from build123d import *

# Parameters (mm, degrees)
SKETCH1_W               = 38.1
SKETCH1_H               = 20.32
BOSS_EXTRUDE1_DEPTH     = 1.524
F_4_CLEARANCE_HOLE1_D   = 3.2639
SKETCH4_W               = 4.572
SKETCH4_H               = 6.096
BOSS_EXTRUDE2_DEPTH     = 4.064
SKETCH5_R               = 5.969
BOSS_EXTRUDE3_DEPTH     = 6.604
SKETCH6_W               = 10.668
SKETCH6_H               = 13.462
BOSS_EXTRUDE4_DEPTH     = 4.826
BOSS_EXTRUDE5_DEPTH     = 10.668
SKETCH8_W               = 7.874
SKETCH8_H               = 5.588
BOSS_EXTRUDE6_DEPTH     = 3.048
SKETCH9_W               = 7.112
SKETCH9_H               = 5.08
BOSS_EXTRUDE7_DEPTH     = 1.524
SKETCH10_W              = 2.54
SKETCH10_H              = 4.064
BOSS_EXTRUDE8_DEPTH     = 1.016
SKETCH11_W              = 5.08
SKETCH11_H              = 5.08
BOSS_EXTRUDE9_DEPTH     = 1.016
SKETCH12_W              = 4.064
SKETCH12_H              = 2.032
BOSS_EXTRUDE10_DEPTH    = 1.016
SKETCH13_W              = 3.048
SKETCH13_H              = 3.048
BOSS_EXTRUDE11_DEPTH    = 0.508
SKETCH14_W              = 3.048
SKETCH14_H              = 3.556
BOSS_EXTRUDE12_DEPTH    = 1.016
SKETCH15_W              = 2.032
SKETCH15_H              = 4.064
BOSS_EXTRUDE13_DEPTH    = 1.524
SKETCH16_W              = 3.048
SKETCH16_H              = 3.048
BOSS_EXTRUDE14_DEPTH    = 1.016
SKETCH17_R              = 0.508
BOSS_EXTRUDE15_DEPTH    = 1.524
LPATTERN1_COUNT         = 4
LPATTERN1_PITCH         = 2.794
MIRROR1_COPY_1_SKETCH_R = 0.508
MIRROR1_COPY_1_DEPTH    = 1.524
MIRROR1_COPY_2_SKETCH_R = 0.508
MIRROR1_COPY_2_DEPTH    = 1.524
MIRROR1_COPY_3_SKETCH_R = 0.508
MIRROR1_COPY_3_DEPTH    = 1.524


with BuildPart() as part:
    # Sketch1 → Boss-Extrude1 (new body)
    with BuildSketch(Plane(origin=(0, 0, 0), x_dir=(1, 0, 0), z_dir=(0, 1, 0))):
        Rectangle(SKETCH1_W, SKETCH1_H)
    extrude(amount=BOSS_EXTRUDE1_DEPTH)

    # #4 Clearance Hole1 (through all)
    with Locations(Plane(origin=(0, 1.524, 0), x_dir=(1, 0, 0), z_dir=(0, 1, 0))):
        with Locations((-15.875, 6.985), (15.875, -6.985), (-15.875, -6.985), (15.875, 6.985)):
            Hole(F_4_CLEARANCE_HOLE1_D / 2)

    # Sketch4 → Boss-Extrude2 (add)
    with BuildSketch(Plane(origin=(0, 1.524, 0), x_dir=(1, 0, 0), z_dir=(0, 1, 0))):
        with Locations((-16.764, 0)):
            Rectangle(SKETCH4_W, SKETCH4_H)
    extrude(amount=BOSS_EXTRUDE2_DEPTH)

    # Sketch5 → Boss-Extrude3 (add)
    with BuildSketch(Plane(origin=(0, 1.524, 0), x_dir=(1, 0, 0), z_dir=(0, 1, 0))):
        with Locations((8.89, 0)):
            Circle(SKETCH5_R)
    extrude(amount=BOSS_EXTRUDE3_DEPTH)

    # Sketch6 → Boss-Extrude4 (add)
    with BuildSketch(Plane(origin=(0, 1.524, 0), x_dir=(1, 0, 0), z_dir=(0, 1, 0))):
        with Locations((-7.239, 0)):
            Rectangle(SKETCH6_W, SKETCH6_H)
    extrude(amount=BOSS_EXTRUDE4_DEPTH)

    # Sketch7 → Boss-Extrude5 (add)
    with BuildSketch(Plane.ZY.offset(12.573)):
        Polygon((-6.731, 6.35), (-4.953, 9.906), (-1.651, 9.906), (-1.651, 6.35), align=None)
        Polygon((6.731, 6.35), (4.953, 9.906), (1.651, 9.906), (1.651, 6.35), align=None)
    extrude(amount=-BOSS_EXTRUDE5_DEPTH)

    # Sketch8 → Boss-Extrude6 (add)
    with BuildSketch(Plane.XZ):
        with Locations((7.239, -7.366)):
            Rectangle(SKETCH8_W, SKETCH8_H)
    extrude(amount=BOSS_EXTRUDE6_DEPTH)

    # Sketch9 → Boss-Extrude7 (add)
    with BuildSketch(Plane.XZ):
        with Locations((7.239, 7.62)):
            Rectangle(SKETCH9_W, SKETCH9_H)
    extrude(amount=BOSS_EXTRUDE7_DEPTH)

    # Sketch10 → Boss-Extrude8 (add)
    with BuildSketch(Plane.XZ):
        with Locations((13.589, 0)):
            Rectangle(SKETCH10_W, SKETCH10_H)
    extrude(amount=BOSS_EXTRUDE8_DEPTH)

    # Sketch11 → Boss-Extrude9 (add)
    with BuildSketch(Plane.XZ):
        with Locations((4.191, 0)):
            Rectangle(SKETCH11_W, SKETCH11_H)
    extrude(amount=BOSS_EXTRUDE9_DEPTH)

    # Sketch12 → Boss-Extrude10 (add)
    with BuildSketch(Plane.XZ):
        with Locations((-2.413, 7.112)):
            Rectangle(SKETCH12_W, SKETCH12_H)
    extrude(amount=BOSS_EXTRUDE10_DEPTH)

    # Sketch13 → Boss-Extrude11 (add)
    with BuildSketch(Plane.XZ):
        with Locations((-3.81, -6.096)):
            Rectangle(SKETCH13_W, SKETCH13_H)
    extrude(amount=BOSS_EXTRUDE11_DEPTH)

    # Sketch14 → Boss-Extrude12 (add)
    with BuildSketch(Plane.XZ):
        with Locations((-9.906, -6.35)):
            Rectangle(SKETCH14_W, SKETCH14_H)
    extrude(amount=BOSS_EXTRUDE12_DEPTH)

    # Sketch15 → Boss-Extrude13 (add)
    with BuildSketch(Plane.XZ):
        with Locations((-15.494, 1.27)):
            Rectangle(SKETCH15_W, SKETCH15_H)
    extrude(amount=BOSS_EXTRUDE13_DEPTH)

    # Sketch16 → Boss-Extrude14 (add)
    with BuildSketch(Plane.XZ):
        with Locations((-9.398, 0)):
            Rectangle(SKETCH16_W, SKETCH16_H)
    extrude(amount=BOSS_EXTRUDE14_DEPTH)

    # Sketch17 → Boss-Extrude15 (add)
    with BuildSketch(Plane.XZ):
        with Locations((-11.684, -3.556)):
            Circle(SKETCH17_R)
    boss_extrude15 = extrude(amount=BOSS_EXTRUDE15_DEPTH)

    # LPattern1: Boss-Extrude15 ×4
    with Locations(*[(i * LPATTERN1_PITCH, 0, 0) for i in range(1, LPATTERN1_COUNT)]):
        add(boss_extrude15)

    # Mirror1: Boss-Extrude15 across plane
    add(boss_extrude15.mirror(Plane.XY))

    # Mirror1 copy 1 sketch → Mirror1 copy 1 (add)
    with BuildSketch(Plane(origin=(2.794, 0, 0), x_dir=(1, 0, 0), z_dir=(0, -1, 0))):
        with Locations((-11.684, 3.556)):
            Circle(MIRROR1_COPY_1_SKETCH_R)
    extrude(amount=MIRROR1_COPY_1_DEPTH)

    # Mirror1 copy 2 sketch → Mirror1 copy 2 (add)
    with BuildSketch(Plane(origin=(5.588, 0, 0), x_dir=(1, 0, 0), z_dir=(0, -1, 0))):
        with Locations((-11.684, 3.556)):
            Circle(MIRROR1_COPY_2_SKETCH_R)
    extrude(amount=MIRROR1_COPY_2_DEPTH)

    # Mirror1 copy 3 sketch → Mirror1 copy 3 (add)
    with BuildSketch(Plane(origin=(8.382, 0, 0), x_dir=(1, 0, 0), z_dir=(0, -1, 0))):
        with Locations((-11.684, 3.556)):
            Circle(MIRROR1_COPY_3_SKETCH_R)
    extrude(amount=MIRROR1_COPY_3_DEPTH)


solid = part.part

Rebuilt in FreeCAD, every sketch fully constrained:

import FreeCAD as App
import Part
import Sketcher
from FreeCAD import Vector
Q = App.Units.Quantity


def add_polygon(sketch, points):
    """Adds a closed chain of lines whose ends are joined by coincident constraints."""
    first, n = sketch.GeometryCount, len(points)
    for a, b in zip(points, points[1:] + points[:1]):
        sketch.addGeometry(Part.LineSegment(App.Vector(*a, 0), App.Vector(*b, 0)), False)
    for i in range(n):
        sketch.addConstraint(Sketcher.Constraint("Coincident", first + i, 2, first + (i + 1) % n, 1))

doc = App.newDocument("Part")
params = doc.addObject("Spreadsheet::Sheet", "Params")
for row, (alias, value) in enumerate([
    ("sketch1_width", "1.5 in"),
    ("sketch1_height", "0.8 in"),
    ("pad1_length", "0.06 in"),
    ("hole_diameter", "0.1285 in"),
    ("sketch3_width", "0.18 in"),
    ("sketch3_height", "0.24 in"),
    ("pad2_length", "0.16 in"),
    ("sketch4_diameter", "0.47 in"),
    ("pad3_length", "0.26 in"),
    ("sketch5_width", "0.42 in"),
    ("sketch5_height", "0.53 in"),
    ("pad4_length", "0.19 in"),
    ("sketch6_height", "0.2 in"),
    ("sketch6_width", "0.14 in"),
    ("sketch6_height2", "0.13 in"),
    ("pad5_length", "0.42 in"),
    ("sketch7_width", "0.31 in"),
    ("sketch7_height", "0.22 in"),
    ("pad6_length", "0.12 in"),
    ("sketch8_height", "0.2 in"),
    ("sketch8_width", "0.28 in"),
    ("pad7_length", "0.06 in"),
    ("sketch9_width", "0.1 in"),
    ("sketch9_height", "0.16 in"),
    ("pad8_length", "0.04 in"),
    ("sketch10_width", "0.2 in"),
    ("pad9_length", "0.04 in"),
    ("sketch11_width", "0.16 in"),
    ("sketch11_height", "0.08 in"),
    ("pad10_length", "0.04 in"),
    ("sketch12_width", "0.12 in"),
    ("pad11_length", "0.02 in"),
    ("sketch13_width", "0.12 in"),
    ("sketch13_height", "0.14 in"),
    ("pad12_length", "0.04 in"),
    ("sketch14_width", "0.08 in"),
    ("sketch14_height", "0.16 in"),
    ("pad13_length", "0.06 in"),
    ("sketch15_width", "0.12 in"),
    ("pad14_length", "0.04 in"),
    ("sketch16_diameter", "0.04 in"),
    ("pad15_length", "0.06 in"),
    ("linearpattern_pitch", "0.11 in"),
    ("sketch17_diameter", "0.04 in"),
    ("pad16_length", "0.06 in"),
    ("sketch18_diameter", "0.04 in"),
    ("pad17_length", "0.06 in"),
    ("sketch19_diameter", "0.04 in"),
    ("pad18_length", "0.06 in"),
], start=1):
    params.set(f"A{row}", alias)
    params.set(f"B{row}", "=" + value)
    params.setAlias(f"B{row}", alias)

body = doc.addObject("PartDesign::Body", "Body")

# Sketch on XZ plane
sketch1 = body.newObject("Sketcher::SketchObject", "Sketch")
sketch1.AttachmentSupport = (doc.getObject("XZ_Plane"), [""])
sketch1.MapMode = "FlatFace"
add_polygon(sketch1, [(-19.05, -10.16), (-19.05, 10.16), (19.05, 10.16), (19.05, -10.16)])  # lines 0-3
sketch1.addConstraint([
    Sketcher.Constraint("Vertical", 0),
    Sketcher.Constraint("Horizontal", 1),
    Sketcher.Constraint("Vertical", 2),
    Sketcher.Constraint("Horizontal", 3),
    Sketcher.Constraint("Symmetric", 0, 2, 2, 2, -1, 1),
    Sketcher.Constraint("DistanceX", 1, 1, 1, 2, Q("1.5 in")),
    Sketcher.Constraint("DistanceY", 0, 1, 0, 2, Q("0.8 in")),
])
sketch1.setExpression("Constraints[9]", "Params.sketch1_width")
sketch1.setExpression("Constraints[10]", "Params.sketch1_height")
pad1 = body.newObject("PartDesign::Pad", "Pad")
pad1.Profile = sketch1
pad1.setExpression("Length", "Params.pad1_length")
pad1.Reversed = True

# Sketch on XZ plane
sketch2 = body.newObject("Sketcher::SketchObject", "Sketch001")
sketch2.AttachmentSupport = (doc.getObject("XZ_Plane"), [""])
sketch2.MapMode = "FlatFace"
sketch2.AttachmentOffset = App.Placement(Vector(0, 0, -0.06 * 25.4), App.Rotation())
sketch2.addGeometry([
    Part.Circle(Vector(-15.875, -6.985, 0), Vector(0, 0, 1), 1.63195),
    Part.Circle(Vector(15.875, 6.985, 0), Vector(0, 0, 1), 1.63195),
    Part.Circle(Vector(-15.875, 6.985, 0), Vector(0, 0, 1), 1.63195),
    Part.Circle(Vector(15.875, -6.985, 0), Vector(0, 0, 1), 1.63195),
], False)
sketch2.addConstraint([
    Sketcher.Constraint("Equal", 0, 1),
    Sketcher.Constraint("Equal", 1, 2),
    Sketcher.Constraint("Equal", 2, 3),
    Sketcher.Constraint("Symmetric", 0, 3, 1, 3, -1, 1),
    Sketcher.Constraint("Symmetric", 2, 3, 3, 3, -1, 1),
    Sketcher.Constraint("Symmetric", 1, 3, 2, 3, -2),
    Sketcher.Constraint("Diameter", 0, Q("0.1285 in")),
    Sketcher.Constraint("DistanceX", 0, 3, 1, 3, Q("1.25 in")),
    Sketcher.Constraint("DistanceY", 0, 3, 1, 3, Q("0.55 in")),
])
doc.recompute()
hole = body.newObject("PartDesign::Hole", "Hole")
hole.Profile = sketch2
hole.ThreadType = "None"
hole.setExpression("Diameter", "Params.hole_diameter")
hole.DepthType = "ThroughAll"
hole.Reversed = True

# Sketch on XZ plane
sketch3 = body.newObject("Sketcher::SketchObject", "Sketch002")
sketch3.AttachmentSupport = (doc.getObject("XZ_Plane"), [""])
sketch3.MapMode = "FlatFace"
sketch3.AttachmentOffset = App.Placement(Vector(0, 0, -0.06 * 25.4), App.Rotation())
add_polygon(sketch3, [(-19.05, -3.048), (-19.05, 3.048), (-14.478, 3.048), (-14.478, -3.048)])  # lines 0-3
sketch3.addConstraint([
    Sketcher.Constraint("Vertical", 0),
    Sketcher.Constraint("Horizontal", 1),
    Sketcher.Constraint("Vertical", 2),
    Sketcher.Constraint("Horizontal", 3),
    Sketcher.Constraint("DistanceX", 1, 1, 1, 2, Q("0.18 in")),
    Sketcher.Constraint("DistanceY", 0, 1, 0, 2, Q("0.24 in")),
    Sketcher.Constraint("DistanceX", 0, 2, -1, 1, Q("0.75 in")),
    Sketcher.Constraint("DistanceY", -1, 1, 0, 2, Q("0.12 in")),
])
sketch3.setExpression("Constraints[8]", "Params.sketch3_width")
sketch3.setExpression("Constraints[9]", "Params.sketch3_height")
pad2 = body.newObject("PartDesign::Pad", "Pad001")
pad2.Profile = sketch3
pad2.setExpression("Length", "Params.pad2_length")
pad2.Reversed = True

# Sketch on XZ plane
sketch4 = body.newObject("Sketcher::SketchObject", "Sketch003")
sketch4.AttachmentSupport = (doc.getObject("XZ_Plane"), [""])
sketch4.MapMode = "FlatFace"
sketch4.AttachmentOffset = App.Placement(Vector(0, 0, -0.06 * 25.4), App.Rotation())
sketch4.addGeometry(Part.Circle(Vector(8.89, 0, 0), Vector(0, 0, 1), 5.969), False)
sketch4.addConstraint([
    Sketcher.Constraint("PointOnObject", 0, 3, -1),
    Sketcher.Constraint("Diameter", 0, Q("0.47 in")),
    Sketcher.Constraint("DistanceX", -1, 1, 0, 3, Q("0.35 in")),
])
sketch4.setExpression("Constraints[1]", "Params.sketch4_diameter")
pad3 = body.newObject("PartDesign::Pad", "Pad002")
pad3.Profile = sketch4
pad3.setExpression("Length", "Params.pad3_length")
pad3.Reversed = True

# Sketch on XZ plane
sketch5 = body.newObject("Sketcher::SketchObject", "Sketch004")
sketch5.AttachmentSupport = (doc.getObject("XZ_Plane"), [""])
sketch5.MapMode = "FlatFace"
sketch5.AttachmentOffset = App.Placement(Vector(0, 0, -0.06 * 25.4), App.Rotation())
add_polygon(sketch5, [(-12.573, -6.731), (-12.573, 6.731), (-1.905, 6.731), (-1.905, -6.731)])  # lines 0-3
sketch5.addConstraint([
    Sketcher.Constraint("Vertical", 0),
    Sketcher.Constraint("Horizontal", 1),
    Sketcher.Constraint("Vertical", 2),
    Sketcher.Constraint("Horizontal", 3),
    Sketcher.Constraint("DistanceX", 1, 1, 1, 2, Q("0.42 in")),
    Sketcher.Constraint("DistanceY", 0, 1, 0, 2, Q("0.53 in")),
    Sketcher.Constraint("DistanceX", 0, 2, -1, 1, Q("0.495 in")),
    Sketcher.Constraint("DistanceY", -1, 1, 0, 2, Q("0.265 in")),
])
sketch5.setExpression("Constraints[8]", "Params.sketch5_width")
sketch5.setExpression("Constraints[9]", "Params.sketch5_height")
pad4 = body.newObject("PartDesign::Pad", "Pad003")
pad4.Profile = sketch5
pad4.setExpression("Length", "Params.pad4_length")
pad4.Reversed = True

# Sketch on YZ plane
sketch6 = body.newObject("Sketcher::SketchObject", "Sketch005")
sketch6.AttachmentSupport = (doc.getObject("YZ_Plane"), [""])
sketch6.MapMode = "FlatFace"
sketch6.AttachmentOffset = App.Placement(Vector(0, 0, -0.495 * 25.4), App.Rotation())
add_polygon(sketch6, [(9.906, -4.953), (6.35, -6.731), (6.35, -1.651), (9.906, -1.651)])  # lines 0-3
add_polygon(sketch6, [(6.35, 6.731), (9.906, 4.953), (9.906, 1.651), (6.35, 1.651)])  # lines 4-7
sketch6.addConstraint([
    Sketcher.Constraint("Vertical", 1),
    Sketcher.Constraint("Horizontal", 2),
    Sketcher.Constraint("Vertical", 3),
    Sketcher.Constraint("Vertical", 5),
    Sketcher.Constraint("Horizontal", 6),
    Sketcher.Constraint("Vertical", 7),
    Sketcher.Constraint("Symmetric", 3, 2, 4, 2, -1),
    Sketcher.Constraint("Symmetric", 1, 2, 6, 2, -1),
    Sketcher.Constraint("Equal", 1, 7),
    Sketcher.Constraint("DistanceY", 1, 1, 1, 2, Q("0.2 in")),
    Sketcher.Constraint("DistanceX", 2, 1, 2, 2, Q("0.14 in")),
    Sketcher.Constraint("DistanceY", 3, 2, 3, 1, Q("0.13 in")),
    Sketcher.Constraint("DistanceX", -1, 1, 0, 2, Q("0.25 in")),
    Sketcher.Constraint("DistanceY", 2, 2, 4, 2, Q("0.26 in")),
])
sketch6.setExpression("Constraints[17]", "Params.sketch6_height")
sketch6.setExpression("Constraints[18]", "Params.sketch6_width")
sketch6.setExpression("Constraints[19]", "Params.sketch6_height2")
pad5 = body.newObject("PartDesign::Pad", "Pad004")
pad5.Profile = sketch6
pad5.setExpression("Length", "Params.pad5_length")

# Sketch on XZ plane
sketch7 = body.newObject("Sketcher::SketchObject", "Sketch006")
sketch7.AttachmentSupport = (doc.getObject("XZ_Plane"), [""])
sketch7.MapMode = "FlatFace"
add_polygon(sketch7, [(3.302, -4.572), (3.302, -10.16), (11.176, -10.16), (11.176, -4.572)])  # lines 0-3
sketch7.addConstraint([
    Sketcher.Constraint("Vertical", 0),
    Sketcher.Constraint("Horizontal", 1),
    Sketcher.Constraint("Vertical", 2),
    Sketcher.Constraint("Horizontal", 3),
    Sketcher.Constraint("DistanceX", 1, 1, 1, 2, Q("0.31 in")),
    Sketcher.Constraint("DistanceY", 0, 2, 0, 1, Q("0.22 in")),
    Sketcher.Constraint("DistanceY", 0, 2, -1, 1, Q("0.4 in")),
    Sketcher.Constraint("DistanceX", -1, 1, 0, 2, Q("0.13 in")),
])
sketch7.setExpression("Constraints[8]", "Params.sketch7_width")
sketch7.setExpression("Constraints[9]", "Params.sketch7_height")
pad6 = body.newObject("PartDesign::Pad", "Pad005")
pad6.Profile = sketch7
pad6.setExpression("Length", "Params.pad6_length")

# Sketch on XZ plane
sketch8 = body.newObject("Sketcher::SketchObject", "Sketch007")
sketch8.AttachmentSupport = (doc.getObject("XZ_Plane"), [""])
sketch8.MapMode = "FlatFace"
add_polygon(sketch8, [(3.683, 10.16), (3.683, 5.08), (10.795, 5.08), (10.795, 10.16)])  # lines 0-3
sketch8.addConstraint([
    Sketcher.Constraint("Vertical", 0),
    Sketcher.Constraint("Horizontal", 1),
    Sketcher.Constraint("Vertical", 2),
    Sketcher.Constraint("Horizontal", 3),
    Sketcher.Constraint("DistanceY", 0, 2, 0, 1, Q("0.2 in")),
    Sketcher.Constraint("DistanceX", 1, 1, 1, 2, Q("0.28 in")),
    Sketcher.Constraint("DistanceY", -1, 1, 0, 2, Q("0.2 in")),
    Sketcher.Constraint("DistanceX", -1, 1, 0, 2, Q("0.145 in")),
])
sketch8.setExpression("Constraints[8]", "Params.sketch8_height")
sketch8.setExpression("Constraints[9]", "Params.sketch8_width")
pad7 = body.newObject("PartDesign::Pad", "Pad006")
pad7.Profile = sketch8
pad7.setExpression("Length", "Params.pad7_length")

# Sketch on XZ plane
sketch9 = body.newObject("Sketcher::SketchObject", "Sketch008")
sketch9.AttachmentSupport = (doc.getObject("XZ_Plane"), [""])
sketch9.MapMode = "FlatFace"
add_polygon(sketch9, [(12.319, 2.032), (12.319, -2.032), (14.859, -2.032), (14.859, 2.032)])  # lines 0-3
sketch9.addConstraint([
    Sketcher.Constraint("Vertical", 0),
    Sketcher.Constraint("Horizontal", 1),
    Sketcher.Constraint("Vertical", 2),
    Sketcher.Constraint("Horizontal", 3),
    Sketcher.Constraint("DistanceX", 1, 1, 1, 2, Q("0.1 in")),
    Sketcher.Constraint("DistanceY", 0, 2, 0, 1, Q("0.16 in")),
    Sketcher.Constraint("DistanceY", 0, 2, -1, 1, Q("0.08 in")),
    Sketcher.Constraint("DistanceX", -1, 1, 0, 2, Q("0.485 in")),
])
sketch9.setExpression("Constraints[8]", "Params.sketch9_width")
sketch9.setExpression("Constraints[9]", "Params.sketch9_height")
pad8 = body.newObject("PartDesign::Pad", "Pad007")
pad8.Profile = sketch9
pad8.setExpression("Length", "Params.pad8_length")

# Sketch on XZ plane
sketch10 = body.newObject("Sketcher::SketchObject", "Sketch009")
sketch10.AttachmentSupport = (doc.getObject("XZ_Plane"), [""])
sketch10.MapMode = "FlatFace"
add_polygon(sketch10, [(1.651, 2.54), (1.651, -2.54), (6.731, -2.54), (6.731, 2.54)])  # lines 0-3
sketch10.addConstraint([
    Sketcher.Constraint("Vertical", 0),
    Sketcher.Constraint("Horizontal", 1),
    Sketcher.Constraint("Vertical", 2),
    Sketcher.Constraint("Horizontal", 3),
    Sketcher.Constraint("Equal", 3, 0),
    Sketcher.Constraint("DistanceX", 1, 1, 1, 2, Q("0.2 in")),
    Sketcher.Constraint("DistanceY", 0, 2, -1, 1, Q("0.1 in")),
    Sketcher.Constraint("DistanceX", -1, 1, 0, 2, Q("0.065 in")),
])
sketch10.setExpression("Constraints[9]", "Params.sketch10_width")
pad9 = body.newObject("PartDesign::Pad", "Pad008")
pad9.Profile = sketch10
pad9.setExpression("Length", "Params.pad9_length")

# Sketch on XZ plane
sketch11 = body.newObject("Sketcher::SketchObject", "Sketch010")
sketch11.AttachmentSupport = (doc.getObject("XZ_Plane"), [""])
sketch11.MapMode = "FlatFace"
add_polygon(sketch11, [(-4.445, 8.128), (-4.445, 6.096), (-0.381, 6.096), (-0.381, 8.128)])  # lines 0-3
sketch11.addConstraint([
    Sketcher.Constraint("Vertical", 0),
    Sketcher.Constraint("Horizontal", 1),
    Sketcher.Constraint("Vertical", 2),
    Sketcher.Constraint("Horizontal", 3),
    Sketcher.Constraint("DistanceX", 1, 1, 1, 2, Q("0.16 in")),
    Sketcher.Constraint("DistanceY", 0, 2, 0, 1, Q("0.08 in")),
    Sketcher.Constraint("DistanceY", -1, 1, 0, 2, Q("0.24 in")),
    Sketcher.Constraint("DistanceX", 0, 2, -1, 1, Q("0.175 in")),
])
sketch11.setExpression("Constraints[8]", "Params.sketch11_width")
sketch11.setExpression("Constraints[9]", "Params.sketch11_height")
pad10 = body.newObject("PartDesign::Pad", "Pad009")
pad10.Profile = sketch11
pad10.setExpression("Length", "Params.pad10_length")

# Sketch on XZ plane
sketch12 = body.newObject("Sketcher::SketchObject", "Sketch011")
sketch12.AttachmentSupport = (doc.getObject("XZ_Plane"), [""])
sketch12.MapMode = "FlatFace"
add_polygon(sketch12, [(-5.334, -4.572), (-5.334, -7.62), (-2.286, -7.62), (-2.286, -4.572)])  # lines 0-3
sketch12.addConstraint([
    Sketcher.Constraint("Vertical", 0),
    Sketcher.Constraint("Horizontal", 1),
    Sketcher.Constraint("Vertical", 2),
    Sketcher.Constraint("Horizontal", 3),
    Sketcher.Constraint("Equal", 3, 0),
    Sketcher.Constraint("DistanceX", 1, 1, 1, 2, Q("0.12 in")),
    Sketcher.Constraint("DistanceY", 0, 2, -1, 1, Q("0.3 in")),
    Sketcher.Constraint("DistanceX", 0, 2, -1, 1, Q("0.21 in")),
])
sketch12.setExpression("Constraints[9]", "Params.sketch12_width")
pad11 = body.newObject("PartDesign::Pad", "Pad010")
pad11.Profile = sketch12
pad11.setExpression("Length", "Params.pad11_length")

# Sketch on XZ plane
sketch13 = body.newObject("Sketcher::SketchObject", "Sketch012")
sketch13.AttachmentSupport = (doc.getObject("XZ_Plane"), [""])
sketch13.MapMode = "FlatFace"
add_polygon(sketch13, [(-11.43, -4.572), (-11.43, -8.128), (-8.382, -8.128), (-8.382, -4.572)])  # lines 0-3
sketch13.addConstraint([
    Sketcher.Constraint("Vertical", 0),
    Sketcher.Constraint("Horizontal", 1),
    Sketcher.Constraint("Vertical", 2),
    Sketcher.Constraint("Horizontal", 3),
    Sketcher.Constraint("DistanceX", 1, 1, 1, 2, Q("0.12 in")),
    Sketcher.Constraint("DistanceY", 0, 2, 0, 1, Q("0.14 in")),
    Sketcher.Constraint("DistanceX", 0, 2, -1, 1, Q("0.45 in")),
    Sketcher.Constraint("DistanceY", 0, 2, -1, 1, Q("0.32 in")),
])
sketch13.setExpression("Constraints[8]", "Params.sketch13_width")
sketch13.setExpression("Constraints[9]", "Params.sketch13_height")
pad12 = body.newObject("PartDesign::Pad", "Pad011")
pad12.Profile = sketch13
pad12.setExpression("Length", "Params.pad12_length")

# Sketch on XZ plane
sketch14 = body.newObject("Sketcher::SketchObject", "Sketch013")
sketch14.AttachmentSupport = (doc.getObject("XZ_Plane"), [""])
sketch14.MapMode = "FlatFace"
add_polygon(sketch14, [(-16.51, 3.302), (-16.51, -0.762), (-14.478, -0.762), (-14.478, 3.302)])  # lines 0-3
sketch14.addConstraint([
    Sketcher.Constraint("Vertical", 0),
    Sketcher.Constraint("Horizontal", 1),
    Sketcher.Constraint("Vertical", 2),
    Sketcher.Constraint("Horizontal", 3),
    Sketcher.Constraint("DistanceX", 1, 1, 1, 2, Q("0.08 in")),
    Sketcher.Constraint("DistanceY", 0, 2, 0, 1, Q("0.16 in")),
    Sketcher.Constraint("DistanceX", 0, 2, -1, 1, Q("0.65 in")),
    Sketcher.Constraint("DistanceY", 0, 2, -1, 1, Q("0.03 in")),
])
sketch14.setExpression("Constraints[8]", "Params.sketch14_width")
sketch14.setExpression("Constraints[9]", "Params.sketch14_height")
pad13 = body.newObject("PartDesign::Pad", "Pad012")
pad13.Profile = sketch14
pad13.setExpression("Length", "Params.pad13_length")

# Sketch on XZ plane
sketch15 = body.newObject("Sketcher::SketchObject", "Sketch014")
sketch15.AttachmentSupport = (doc.getObject("XZ_Plane"), [""])
sketch15.MapMode = "FlatFace"
add_polygon(sketch15, [(-10.922, 1.524), (-10.922, -1.524), (-7.874, -1.524), (-7.874, 1.524)])  # lines 0-3
sketch15.addConstraint([
    Sketcher.Constraint("Vertical", 0),
    Sketcher.Constraint("Horizontal", 1),
    Sketcher.Constraint("Vertical", 2),
    Sketcher.Constraint("Horizontal", 3),
    Sketcher.Constraint("Equal", 3, 0),
    Sketcher.Constraint("DistanceX", 1, 1, 1, 2, Q("0.12 in")),
    Sketcher.Constraint("DistanceX", 0, 2, -1, 1, Q("0.43 in")),
    Sketcher.Constraint("DistanceY", 0, 2, -1, 1, Q("0.06 in")),
])
sketch15.setExpression("Constraints[9]", "Params.sketch15_width")
pad14 = body.newObject("PartDesign::Pad", "Pad013")
pad14.Profile = sketch15
pad14.setExpression("Length", "Params.pad14_length")

# Sketch on XZ plane
sketch16 = body.newObject("Sketcher::SketchObject", "Sketch015")
sketch16.AttachmentSupport = (doc.getObject("XZ_Plane"), [""])
sketch16.MapMode = "FlatFace"
sketch16.addGeometry(Part.Circle(Vector(-11.684, -3.556, 0), Vector(0, 0, 1), 0.508), False)
sketch16.addConstraint([
    Sketcher.Constraint("Diameter", 0, Q("0.04 in")),
    Sketcher.Constraint("DistanceX", 0, 3, -1, 1, Q("0.46 in")),
    Sketcher.Constraint("DistanceY", 0, 3, -1, 1, Q("0.14 in")),
])
sketch16.setExpression("Constraints[0]", "Params.sketch16_diameter")
pad15 = body.newObject("PartDesign::Pad", "Pad014")
pad15.Profile = sketch16
pad15.setExpression("Length", "Params.pad15_length")
doc.recompute()

linearpattern = body.newObject("PartDesign::LinearPattern", "LinearPattern")
linearpattern.Originals = [pad15]
linearpattern.Direction = (doc.getObject("X_Axis"), [""])
linearpattern.Mode = "offset"
linearpattern.setExpression("Offset", "Params.linearpattern_pitch")
linearpattern.Occurrences = 4
body.Tip = linearpattern
doc.recompute()

mirrored = body.newObject("PartDesign::Mirrored", "Mirrored")
mirrored.Originals = [pad15]
mirrored.MirrorPlane = (doc.getObject("XY_Plane"), [""])
body.Tip = mirrored

# Sketch on XZ plane
sketch17 = body.newObject("Sketcher::SketchObject", "Sketch016")
sketch17.AttachmentSupport = (doc.getObject("XZ_Plane"), [""])
sketch17.MapMode = "FlatFace"
sketch17.addGeometry(Part.Circle(Vector(-8.89, 3.556, 0), Vector(0, 0, 1), 0.508), False)
sketch17.addConstraint([
    Sketcher.Constraint("Diameter", 0, Q("0.04 in")),
    Sketcher.Constraint("DistanceX", 0, 3, -1, 1, Q("0.35 in")),
    Sketcher.Constraint("DistanceY", -1, 1, 0, 3, Q("0.14 in")),
])
sketch17.setExpression("Constraints[0]", "Params.sketch17_diameter")
pad16 = body.newObject("PartDesign::Pad", "Pad015")
pad16.Profile = sketch17
pad16.setExpression("Length", "Params.pad16_length")

# Sketch on XZ plane
sketch18 = body.newObject("Sketcher::SketchObject", "Sketch017")
sketch18.AttachmentSupport = (doc.getObject("XZ_Plane"), [""])
sketch18.MapMode = "FlatFace"
sketch18.addGeometry(Part.Circle(Vector(-6.096, 3.556, 0), Vector(0, 0, 1), 0.508), False)
sketch18.addConstraint([
    Sketcher.Constraint("Diameter", 0, Q("0.04 in")),
    Sketcher.Constraint("DistanceX", 0, 3, -1, 1, Q("0.24 in")),
    Sketcher.Constraint("DistanceY", -1, 1, 0, 3, Q("0.14 in")),
])
sketch18.setExpression("Constraints[0]", "Params.sketch18_diameter")
pad17 = body.newObject("PartDesign::Pad", "Pad016")
pad17.Profile = sketch18
pad17.setExpression("Length", "Params.pad17_length")

# Sketch on XZ plane
sketch19 = body.newObject("Sketcher::SketchObject", "Sketch018")
sketch19.AttachmentSupport = (doc.getObject("XZ_Plane"), [""])
sketch19.MapMode = "FlatFace"
sketch19.addGeometry(Part.Circle(Vector(-3.302, 3.556, 0), Vector(0, 0, 1), 0.508), False)
sketch19.addConstraint([
    Sketcher.Constraint("Diameter", 0, Q("0.04 in")),
    Sketcher.Constraint("DistanceX", 0, 3, -1, 1, Q("0.13 in")),
    Sketcher.Constraint("DistanceY", -1, 1, 0, 3, Q("0.14 in")),
])
sketch19.setExpression("Constraints[0]", "Params.sketch19_diameter")
pad18 = body.newObject("PartDesign::Pad", "Pad017")
pad18.Profile = sketch19
pad18.setExpression("Length", "Params.pad18_length")

doc.recompute()
